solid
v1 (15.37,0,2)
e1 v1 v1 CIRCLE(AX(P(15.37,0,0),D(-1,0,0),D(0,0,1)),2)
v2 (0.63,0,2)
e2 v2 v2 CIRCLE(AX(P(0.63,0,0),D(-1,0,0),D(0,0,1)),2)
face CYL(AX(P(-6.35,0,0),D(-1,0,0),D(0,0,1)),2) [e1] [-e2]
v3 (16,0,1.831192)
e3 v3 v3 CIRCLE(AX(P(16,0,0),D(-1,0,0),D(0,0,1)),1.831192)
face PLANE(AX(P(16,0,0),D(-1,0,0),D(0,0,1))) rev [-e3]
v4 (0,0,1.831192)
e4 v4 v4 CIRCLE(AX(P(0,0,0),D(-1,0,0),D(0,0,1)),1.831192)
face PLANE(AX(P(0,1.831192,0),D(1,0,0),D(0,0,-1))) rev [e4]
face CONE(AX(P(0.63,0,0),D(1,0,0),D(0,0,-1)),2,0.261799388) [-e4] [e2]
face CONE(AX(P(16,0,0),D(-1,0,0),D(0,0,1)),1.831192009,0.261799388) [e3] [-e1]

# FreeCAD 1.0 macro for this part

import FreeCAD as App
import Part
import Sketcher

V = App.Vector
Q = App.Units.Quantity

doc = App.newDocument("Part")
body = doc.addObject("PartDesign::Body", "Body")

sketch1 = body.newObject("Sketcher::SketchObject", "Sketch")
sketch1.AttachmentSupport = (doc.getObject("XY_Plane"), [""])
sketch1.MapMode = "FlatFace"
sketch1.addGeometry([
    Part.LineSegment(V(0, 0, 0), V(16, 0, 0)),
    Part.LineSegment(V(16, 0, 0), V(16, 1.8, 0)),
    Part.LineSegment(V(16, 1.8, 0), V(15.4, 2, 0)),
    Part.LineSegment(V(15.4, 2, 0), V(0.6, 2, 0)),
    Part.LineSegment(V(0.6, 2, 0), V(0, 1.8, 0)),
    Part.LineSegment(V(0, 1.8, 0), V(0, 0, 0)),
], False)
sketch1.addConstraint([
    Sketcher.Constraint("Coincident", 0, 2, 1, 1),
    Sketcher.Constraint("Coincident", 1, 2, 2, 1),
    Sketcher.Constraint("Coincident", 2, 2, 3, 1),
    Sketcher.Constraint("Coincident", 3, 2, 4, 1),
    Sketcher.Constraint("Coincident", 4, 2, 5, 1),
    Sketcher.Constraint("Coincident", 5, 2, 0, 1),
    Sketcher.Constraint("Horizontal", 0),
    Sketcher.Constraint("Vertical", 1),
    Sketcher.Constraint("Horizontal", 3),
    Sketcher.Constraint("Vertical", 5),
    Sketcher.Constraint("Coincident", 5, 2, -1, 1),
    Sketcher.Constraint("Horizontal", 1, 2, 4, 2),
    Sketcher.Constraint("Equal", 2, 4),
    Sketcher.Constraint("DistanceX", 0, 1, 0, 2, 16.0),
    Sketcher.Constraint("Angle", 2, Q("165 deg")),
    Sketcher.Constraint("DistanceY", -1, 1, 2, 2, 2.0),
    Sketcher.Constraint("DistanceX", 3, 2, 3, 1, 14.74),
])
revolution = body.newObject("PartDesign::Revolution", "Revolution")
revolution.Profile = sketch1
revolution.ReferenceAxis = (sketch1, ["H_Axis"])
revolution.Angle = 360

doc.recompute()
